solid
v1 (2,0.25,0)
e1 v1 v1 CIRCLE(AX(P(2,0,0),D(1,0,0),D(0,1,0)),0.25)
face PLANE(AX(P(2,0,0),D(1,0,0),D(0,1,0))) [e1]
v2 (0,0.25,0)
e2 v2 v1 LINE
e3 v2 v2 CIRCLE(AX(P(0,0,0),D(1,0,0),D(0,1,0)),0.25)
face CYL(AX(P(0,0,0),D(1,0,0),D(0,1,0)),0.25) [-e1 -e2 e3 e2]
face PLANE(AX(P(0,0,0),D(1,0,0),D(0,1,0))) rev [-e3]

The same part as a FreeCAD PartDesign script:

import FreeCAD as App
import Part
import Sketcher

V = App.Vector
Q = App.Units.Quantity

doc = App.newDocument("Part")
body = doc.addObject("PartDesign::Body", "Body")

# Sketch on XY plane
sketch1 = body.newObject("Sketcher::SketchObject", "Sketch")
sketch1.AttachmentSupport = (doc.getObject("XY_Plane"), [""])
sketch1.MapMode = "FlatFace"
sketch1.addGeometry([
    Part.LineSegment(V(0, 0.25, 0), V(0, 0, 0)),
    Part.LineSegment(V(0, 0, 0), V(2, 0, 0)),
    Part.LineSegment(V(2, 0, 0), V(2, 0.25, 0)),
    Part.LineSegment(V(2, 0.25, 0), V(0, 0.25, 0)),
], False)
sketch1.addConstraint([
    Sketcher.Constraint("Coincident", 0, 2, 1, 1),
    Sketcher.Constraint("Coincident", 1, 2, 2, 1),
    Sketcher.Constraint("Coincident", 2, 2, 3, 1),
    Sketcher.Constraint("Coincident", 3, 2, 0, 1),
    Sketcher.Constraint("Vertical", 0),
    Sketcher.Constraint("Horizontal", 1),
    Sketcher.Constraint("Vertical", 2),
    Sketcher.Constraint("Horizontal", 3),
    Sketcher.Constraint("Coincident", 0, 2, -1, 1),
    Sketcher.Constraint("DistanceX", 1, 1, 1, 2, Q("2 mm")),
    Sketcher.Constraint("DistanceY", 0, 2, 0, 1, Q("0.25 mm")),
])
revolution = body.newObject("PartDesign::Revolution", "Revolution")
revolution.Profile = sketch1
revolution.ReferenceAxis = (sketch1, ["H_Axis"])
revolution.Angle = 360

doc.recompute()
